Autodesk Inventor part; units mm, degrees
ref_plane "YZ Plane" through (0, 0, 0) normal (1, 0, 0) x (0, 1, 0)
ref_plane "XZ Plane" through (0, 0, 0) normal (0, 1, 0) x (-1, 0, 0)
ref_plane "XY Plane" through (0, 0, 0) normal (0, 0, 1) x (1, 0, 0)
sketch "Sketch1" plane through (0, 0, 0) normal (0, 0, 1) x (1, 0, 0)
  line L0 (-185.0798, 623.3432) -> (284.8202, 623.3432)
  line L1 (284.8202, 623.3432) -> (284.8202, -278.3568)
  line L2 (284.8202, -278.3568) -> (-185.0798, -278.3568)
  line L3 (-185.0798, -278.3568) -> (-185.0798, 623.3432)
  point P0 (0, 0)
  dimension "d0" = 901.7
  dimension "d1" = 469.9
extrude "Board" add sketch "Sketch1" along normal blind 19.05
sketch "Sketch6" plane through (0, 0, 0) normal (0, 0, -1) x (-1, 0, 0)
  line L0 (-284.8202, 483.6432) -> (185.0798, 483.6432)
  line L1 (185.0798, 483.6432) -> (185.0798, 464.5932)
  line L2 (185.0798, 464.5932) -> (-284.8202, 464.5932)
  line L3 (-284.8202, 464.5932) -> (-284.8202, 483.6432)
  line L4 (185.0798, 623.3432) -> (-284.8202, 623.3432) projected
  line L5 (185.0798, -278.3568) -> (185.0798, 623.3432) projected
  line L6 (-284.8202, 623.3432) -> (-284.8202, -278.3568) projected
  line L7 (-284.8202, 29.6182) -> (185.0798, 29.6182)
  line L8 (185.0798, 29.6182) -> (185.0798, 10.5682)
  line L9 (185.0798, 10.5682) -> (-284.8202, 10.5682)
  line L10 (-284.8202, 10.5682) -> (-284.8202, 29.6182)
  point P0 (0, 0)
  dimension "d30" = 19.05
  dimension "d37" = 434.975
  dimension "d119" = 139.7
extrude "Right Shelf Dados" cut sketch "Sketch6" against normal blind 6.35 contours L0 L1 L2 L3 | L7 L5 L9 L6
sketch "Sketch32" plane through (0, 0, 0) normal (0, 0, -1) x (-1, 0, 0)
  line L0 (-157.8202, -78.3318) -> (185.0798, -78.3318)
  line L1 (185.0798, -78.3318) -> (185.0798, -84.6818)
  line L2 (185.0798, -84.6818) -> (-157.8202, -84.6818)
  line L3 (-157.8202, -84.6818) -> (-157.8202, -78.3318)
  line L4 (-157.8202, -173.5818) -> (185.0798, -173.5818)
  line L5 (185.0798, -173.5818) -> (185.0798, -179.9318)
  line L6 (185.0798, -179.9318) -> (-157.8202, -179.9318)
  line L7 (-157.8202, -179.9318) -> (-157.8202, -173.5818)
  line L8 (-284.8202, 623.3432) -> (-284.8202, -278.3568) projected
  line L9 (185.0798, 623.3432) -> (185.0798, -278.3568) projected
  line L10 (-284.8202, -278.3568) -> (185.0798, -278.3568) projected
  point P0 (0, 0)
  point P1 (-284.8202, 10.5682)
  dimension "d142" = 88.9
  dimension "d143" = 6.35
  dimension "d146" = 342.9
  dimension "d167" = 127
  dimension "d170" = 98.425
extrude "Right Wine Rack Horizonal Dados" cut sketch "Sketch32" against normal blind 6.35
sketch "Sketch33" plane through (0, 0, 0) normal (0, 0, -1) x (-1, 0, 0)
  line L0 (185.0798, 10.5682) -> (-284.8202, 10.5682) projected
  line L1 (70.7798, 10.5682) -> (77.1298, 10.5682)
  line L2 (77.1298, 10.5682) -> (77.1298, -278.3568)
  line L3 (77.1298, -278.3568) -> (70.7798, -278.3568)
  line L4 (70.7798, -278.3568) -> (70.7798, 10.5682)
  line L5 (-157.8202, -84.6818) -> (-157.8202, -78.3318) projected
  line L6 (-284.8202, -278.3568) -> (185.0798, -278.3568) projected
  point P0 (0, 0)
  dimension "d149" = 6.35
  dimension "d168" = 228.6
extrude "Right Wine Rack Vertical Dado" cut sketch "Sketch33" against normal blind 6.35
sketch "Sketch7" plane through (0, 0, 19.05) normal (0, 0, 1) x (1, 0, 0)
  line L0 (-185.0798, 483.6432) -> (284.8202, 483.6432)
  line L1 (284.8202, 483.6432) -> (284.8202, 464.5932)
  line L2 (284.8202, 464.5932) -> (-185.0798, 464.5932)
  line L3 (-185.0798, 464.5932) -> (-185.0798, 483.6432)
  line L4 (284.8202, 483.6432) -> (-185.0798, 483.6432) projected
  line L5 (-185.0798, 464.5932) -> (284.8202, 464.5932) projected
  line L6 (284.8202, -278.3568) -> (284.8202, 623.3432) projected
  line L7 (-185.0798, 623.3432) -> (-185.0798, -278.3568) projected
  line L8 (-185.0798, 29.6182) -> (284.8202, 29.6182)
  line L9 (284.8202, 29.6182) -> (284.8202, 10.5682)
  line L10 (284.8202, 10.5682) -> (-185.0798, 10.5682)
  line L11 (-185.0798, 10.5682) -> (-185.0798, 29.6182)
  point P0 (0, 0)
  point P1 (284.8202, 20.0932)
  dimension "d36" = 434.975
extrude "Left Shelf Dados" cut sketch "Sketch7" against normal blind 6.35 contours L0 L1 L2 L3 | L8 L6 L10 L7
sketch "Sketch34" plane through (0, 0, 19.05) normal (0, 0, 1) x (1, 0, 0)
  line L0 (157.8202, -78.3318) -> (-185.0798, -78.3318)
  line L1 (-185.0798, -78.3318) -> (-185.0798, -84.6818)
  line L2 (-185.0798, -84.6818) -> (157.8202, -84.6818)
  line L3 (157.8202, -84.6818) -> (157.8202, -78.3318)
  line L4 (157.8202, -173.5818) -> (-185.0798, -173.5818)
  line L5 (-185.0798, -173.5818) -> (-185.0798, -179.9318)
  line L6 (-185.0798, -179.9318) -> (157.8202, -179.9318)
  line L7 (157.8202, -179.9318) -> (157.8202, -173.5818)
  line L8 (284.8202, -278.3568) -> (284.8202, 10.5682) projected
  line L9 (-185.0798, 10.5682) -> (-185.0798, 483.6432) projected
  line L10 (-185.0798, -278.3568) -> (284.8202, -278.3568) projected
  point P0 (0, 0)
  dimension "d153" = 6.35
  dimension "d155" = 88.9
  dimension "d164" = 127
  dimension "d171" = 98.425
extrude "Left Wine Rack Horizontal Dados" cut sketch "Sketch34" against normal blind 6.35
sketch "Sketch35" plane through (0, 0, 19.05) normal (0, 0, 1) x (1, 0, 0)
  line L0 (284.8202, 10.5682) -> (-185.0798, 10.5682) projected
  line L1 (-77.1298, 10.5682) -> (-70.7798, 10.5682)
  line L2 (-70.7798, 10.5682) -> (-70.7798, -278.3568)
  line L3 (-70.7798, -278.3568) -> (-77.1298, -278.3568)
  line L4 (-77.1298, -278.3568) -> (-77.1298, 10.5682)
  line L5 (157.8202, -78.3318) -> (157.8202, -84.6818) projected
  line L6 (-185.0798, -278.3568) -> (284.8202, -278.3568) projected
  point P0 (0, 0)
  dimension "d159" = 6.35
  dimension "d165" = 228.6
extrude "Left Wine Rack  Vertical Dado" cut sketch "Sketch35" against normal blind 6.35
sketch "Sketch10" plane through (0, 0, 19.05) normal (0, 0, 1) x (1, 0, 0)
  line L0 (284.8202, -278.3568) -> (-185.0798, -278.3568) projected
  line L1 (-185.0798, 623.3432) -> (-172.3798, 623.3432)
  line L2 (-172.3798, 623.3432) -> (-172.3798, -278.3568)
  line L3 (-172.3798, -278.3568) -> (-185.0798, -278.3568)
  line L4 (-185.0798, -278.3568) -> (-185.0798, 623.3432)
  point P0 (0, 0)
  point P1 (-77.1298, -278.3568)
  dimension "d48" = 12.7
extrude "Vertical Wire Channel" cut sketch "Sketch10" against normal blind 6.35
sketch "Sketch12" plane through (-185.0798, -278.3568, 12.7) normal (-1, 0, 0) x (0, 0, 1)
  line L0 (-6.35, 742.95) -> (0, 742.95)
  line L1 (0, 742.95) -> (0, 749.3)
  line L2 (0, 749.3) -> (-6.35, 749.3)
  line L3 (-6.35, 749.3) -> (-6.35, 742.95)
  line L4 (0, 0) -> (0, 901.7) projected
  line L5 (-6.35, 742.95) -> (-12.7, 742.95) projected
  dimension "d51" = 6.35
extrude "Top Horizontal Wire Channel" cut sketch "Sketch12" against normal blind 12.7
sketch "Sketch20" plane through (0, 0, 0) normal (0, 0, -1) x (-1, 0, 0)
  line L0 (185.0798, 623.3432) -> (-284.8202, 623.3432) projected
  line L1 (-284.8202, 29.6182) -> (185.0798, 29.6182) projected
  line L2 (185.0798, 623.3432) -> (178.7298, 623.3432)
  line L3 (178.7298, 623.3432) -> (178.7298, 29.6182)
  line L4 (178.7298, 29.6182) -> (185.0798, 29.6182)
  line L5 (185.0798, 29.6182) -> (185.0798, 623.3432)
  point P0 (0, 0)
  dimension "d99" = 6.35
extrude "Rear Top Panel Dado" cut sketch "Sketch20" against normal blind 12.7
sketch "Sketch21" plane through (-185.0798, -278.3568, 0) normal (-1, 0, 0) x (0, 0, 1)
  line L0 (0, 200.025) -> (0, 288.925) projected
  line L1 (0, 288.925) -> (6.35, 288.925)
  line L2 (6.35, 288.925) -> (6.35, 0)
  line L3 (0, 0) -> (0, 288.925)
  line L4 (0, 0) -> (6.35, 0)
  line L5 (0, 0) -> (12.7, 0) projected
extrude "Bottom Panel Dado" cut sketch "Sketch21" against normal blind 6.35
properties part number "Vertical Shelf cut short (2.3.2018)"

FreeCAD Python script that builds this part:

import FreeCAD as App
import Part
import Sketcher
from FreeCAD import Vector
Q = App.Units.Quantity

doc = App.newDocument("Part")
body = doc.addObject("PartDesign::Body", "Body")

# Sketch on XY plane
sketch1 = body.newObject("Sketcher::SketchObject", "Sketch")
sketch1.AttachmentSupport = (doc.getObject("XY_Plane"), [""])
sketch1.MapMode = "FlatFace"
sketch1.addGeometry([
    Part.LineSegment(Vector(285, 623, 0), Vector(-185, 623, 0)),
    Part.LineSegment(Vector(-185, 623, 0), Vector(-185, -278, 0)),
    Part.LineSegment(Vector(-185, -278, 0), Vector(285, -278, 0)),
    Part.LineSegment(Vector(285, -278, 0), Vector(285, 623, 0)),
], False)
sketch1.addConstraint([
    Sketcher.Constraint("Coincident", 0, 2, 1, 1),
    Sketcher.Constraint("Coincident", 1, 2, 2, 1),
    Sketcher.Constraint("Coincident", 2, 2, 3, 1),
    Sketcher.Constraint("Coincident", 3, 2, 0, 1),
    Sketcher.Constraint("Horizontal", 0),
    Sketcher.Constraint("Vertical", 1),
    Sketcher.Constraint("Horizontal", 2),
    Sketcher.Constraint("Vertical", 3),
    Sketcher.Constraint("DistanceX", 0, 2, 0, 1, Q("18.5 in")),
    Sketcher.Constraint("DistanceY", 1, 2, 1, 1, Q("35.5 in")),
    Sketcher.Constraint("DistanceX", 0, 2, -1, 1, Q("7.2866 in")),
    Sketcher.Constraint("DistanceY", -1, 1, 0, 2, Q("623.3432 mm")),
])
pad1 = body.newObject("PartDesign::Pad", "Pad")
pad1.Profile = sketch1
pad1.Length = Q("0.75 in")

# Sketch on XY plane
sketch2 = body.newObject("Sketcher::SketchObject", "Sketch001")
sketch2.AttachmentSupport = (doc.getObject("XY_Plane"), [""])
sketch2.MapMode = "FlatFace"
sketch2.addGeometry([
    Part.LineSegment(Vector(-185, 484, 0), Vector(285, 484, 0)),  # 0
    Part.LineSegment(Vector(285, 484, 0), Vector(285, 465, 0)),  # 1
    Part.LineSegment(Vector(285, 465, 0), Vector(-185, 465, 0)),  # 2
    Part.LineSegment(Vector(-185, 465, 0), Vector(-185, 484, 0)),  # 3
    Part.LineSegment(Vector(-185, 30, 0), Vector(285, 30, 0)),  # 4
    Part.LineSegment(Vector(285, 30, 0), Vector(285, 11, 0)),  # 5
    Part.LineSegment(Vector(285, 11, 0), Vector(-185, 11, 0)),  # 6
    Part.LineSegment(Vector(-185, 11, 0), Vector(-185, 30, 0)),  # 7
], False)
sketch2.addConstraint([
    Sketcher.Constraint("Coincident", 0, 2, 1, 1),
    Sketcher.Constraint("Coincident", 1, 2, 2, 1),
    Sketcher.Constraint("Coincident", 2, 2, 3, 1),
    Sketcher.Constraint("Coincident", 3, 2, 0, 1),
    Sketcher.Constraint("Coincident", 4, 2, 5, 1),
    Sketcher.Constraint("Coincident", 5, 2, 6, 1),
    Sketcher.Constraint("Coincident", 6, 2, 7, 1),
    Sketcher.Constraint("Coincident", 7, 2, 4, 1),
    Sketcher.Constraint("Horizontal", 0),
    Sketcher.Constraint("Vertical", 1),
    Sketcher.Constraint("Horizontal", 2),
    Sketcher.Constraint("Vertical", 3),
    Sketcher.Constraint("Horizontal", 4),
    Sketcher.Constraint("Vertical", 5),
    Sketcher.Constraint("Horizontal", 6),
    Sketcher.Constraint("Vertical", 7),
    Sketcher.Constraint("Vertical", 1, 2, 4, 2),
    Sketcher.Constraint("Vertical", 3, 2, 6, 2),
    Sketcher.Constraint("Equal", 3, 5),
    Sketcher.Constraint("DistanceY", 1, 2, 1, 1, Q("0.75 in")),
    Sketcher.Constraint("DistanceX", 0, 1, 0, 2, Q("18.5 in")),
    Sketcher.Constraint("DistanceY", 4, 2, 1, 2, Q("17.125 in")),
    Sketcher.Constraint("DistanceX", -1, 1, 0, 2, Q("11.2134 in")),
    Sketcher.Constraint("DistanceY", -1, 1, 0, 2, Q("483.6432 mm")),
])
pocket1 = body.newObject("PartDesign::Pocket", "Pocket")
pocket1.Profile = sketch2
pocket1.Length = Q("0.25 in")
pocket1.Reversed = True

# Sketch on XY plane
sketch3 = body.newObject("Sketcher::SketchObject", "Sketch002")
sketch3.AttachmentSupport = (doc.getObject("XY_Plane"), [""])
sketch3.MapMode = "FlatFace"
sketch3.addGeometry([
    Part.LineSegment(Vector(-185, -180, 0), Vector(-185, -174, 0)),  # 0
    Part.LineSegment(Vector(-185, -174, 0), Vector(158, -174, 0)),  # 1
    Part.LineSegment(Vector(158, -174, 0), Vector(158, -180, 0)),  # 2
    Part.LineSegment(Vector(158, -180, 0), Vector(-185, -180, 0)),  # 3
    Part.LineSegment(Vector(-185, -78, 0), Vector(158, -78, 0)),  # 4
    Part.LineSegment(Vector(158, -78, 0), Vector(158, -85, 0)),  # 5
    Part.LineSegment(Vector(158, -85, 0), Vector(-185, -85, 0)),  # 6
    Part.LineSegment(Vector(-185, -85, 0), Vector(-185, -78, 0)),  # 7
], False)
sketch3.addConstraint([
    Sketcher.Constraint("Coincident", 0, 2, 1, 1),
    Sketcher.Constraint("Coincident", 1, 2, 2, 1),
    Sketcher.Constraint("Coincident", 2, 2, 3, 1),
    Sketcher.Constraint("Coincident", 3, 2, 0, 1),
    Sketcher.Constraint("Coincident", 4, 2, 5, 1),
    Sketcher.Constraint("Coincident", 5, 2, 6, 1),
    Sketcher.Constraint("Coincident", 6, 2, 7, 1),
    Sketcher.Constraint("Coincident", 7, 2, 4, 1),
    Sketcher.Constraint("Vertical", 0),
    Sketcher.Constraint("Horizontal", 1),
    Sketcher.Constraint("Vertical", 2),
    Sketcher.Constraint("Horizontal", 3),
    Sketcher.Constraint("Horizontal", 4),
    Sketcher.Constraint("Vertical", 5),
    Sketcher.Constraint("Horizontal", 6),
    Sketcher.Constraint("Vertical", 7),
    Sketcher.Constraint("Vertical", 2, 2, 4, 2),
    Sketcher.Constraint("Vertical", 3, 2, 6, 2),
    Sketcher.Constraint("Equal", 2, 5),
    Sketcher.Constraint("DistanceX", 1, 1, 1, 2, Q("13.5 in")),
    Sketcher.Constraint("DistanceY", 0, 1, 0, 2, Q("0.25 in")),
    Sketcher.Constraint("DistanceY", 1, 2, 5, 2, Q("3.5 in")),
    Sketcher.Constraint("DistanceX", 0, 2, -1, 1, Q("7.2866 in")),
    Sketcher.Constraint("DistanceY", 0, 2, -1, 1, Q("173.5818 mm")),
])
pocket2 = body.newObject("PartDesign::Pocket", "Pocket001")
pocket2.Profile = sketch3
pocket2.Length = Q("0.25 in")
pocket2.Reversed = True

# Sketch on XY plane
sketch4 = body.newObject("Sketcher::SketchObject", "Sketch003")
sketch4.AttachmentSupport = (doc.getObject("XY_Plane"), [""])
sketch4.MapMode = "FlatFace"
sketch4.addGeometry([
    Part.LineSegment(Vector(-77, -278, 0), Vector(-77, 11, 0)),
    Part.LineSegment(Vector(-77, 11, 0), Vector(-71, 11, 0)),
    Part.LineSegment(Vector(-71, 11, 0), Vector(-71, -278, 0)),
    Part.LineSegment(Vector(-71, -278, 0), Vector(-77, -278, 0)),
], False)
sketch4.addConstraint([
    Sketcher.Constraint("Coincident", 0, 2, 1, 1),
    Sketcher.Constraint("Coincident", 1, 2, 2, 1),
    Sketcher.Constraint("Coincident", 2, 2, 3, 1),
    Sketcher.Constraint("Coincident", 3, 2, 0, 1),
    Sketcher.Constraint("Vertical", 0),
    Sketcher.Constraint("Horizontal", 1),
    Sketcher.Constraint("Vertical", 2),
    Sketcher.Constraint("Horizontal", 3),
    Sketcher.Constraint("DistanceX", 1, 1, 1, 2, Q("0.25 in")),
    Sketcher.Constraint("DistanceY", 0, 1, 0, 2, Q("11.375 in")),
    Sketcher.Constraint("DistanceX", 0, 2, -1, 1, Q("3.0366 in")),
    Sketcher.Constraint("DistanceY", -1, 1, 0, 2, Q("10.5682 mm")),
])
pocket3 = body.newObject("PartDesign::Pocket", "Pocket002")
pocket3.Profile = sketch4
pocket3.Length = Q("0.25 in")
pocket3.Reversed = True

# Sketch on XY plane
sketch5 = body.newObject("Sketcher::SketchObject", "Sketch004")
sketch5.AttachmentSupport = (doc.getObject("XY_Plane"), [""])
sketch5.MapMode = "FlatFace"
sketch5.AttachmentOffset = App.Placement(Vector(0, 0, 0.75 * 25.4), App.Rotation())
sketch5.addGeometry([
    Part.LineSegment(Vector(285, 484, 0), Vector(-185, 484, 0)),  # 0
    Part.LineSegment(Vector(-185, 484, 0), Vector(-185, 465, 0)),  # 1
    Part.LineSegment(Vector(-185, 465, 0), Vector(285, 465, 0)),  # 2
    Part.LineSegment(Vector(285, 465, 0), Vector(285, 484, 0)),  # 3
    Part.LineSegment(Vector(285, 30, 0), Vector(-185, 30, 0)),  # 4
    Part.LineSegment(Vector(-185, 30, 0), Vector(-185, 11, 0)),  # 5
    Part.LineSegment(Vector(-185, 11, 0), Vector(285, 11, 0)),  # 6
    Part.LineSegment(Vector(285, 11, 0), Vector(285, 30, 0)),  # 7
], False)
sketch5.addConstraint([
    Sketcher.Constraint("Coincident", 0, 2, 1, 1),
    Sketcher.Constraint("Coincident", 1, 2, 2, 1),
    Sketcher.Constraint("Coincident", 2, 2, 3, 1),
    Sketcher.Constraint("Coincident", 3, 2, 0, 1),
    Sketcher.Constraint("Coincident", 4, 2, 5, 1),
    Sketcher.Constraint("Coincident", 5, 2, 6, 1),
    Sketcher.Constraint("Coincident", 6, 2, 7, 1),
    Sketcher.Constraint("Coincident", 7, 2, 4, 1),
    Sketcher.Constraint("Horizontal", 0),
    Sketcher.Constraint("Vertical", 1),
    Sketcher.Constraint("Horizontal", 2),
    Sketcher.Constraint("Vertical", 3),
    Sketcher.Constraint("Horizontal", 4),
    Sketcher.Constraint("Vertical", 5),
    Sketcher.Constraint("Horizontal", 6),
    Sketcher.Constraint("Vertical", 7),
    Sketcher.Constraint("Vertical", 1, 2, 4, 2),
    Sketcher.Constraint("Vertical", 3, 2, 6, 2),
    Sketcher.Constraint("Equal", 3, 5),
    Sketcher.Constraint("DistanceX", 0, 2, 0, 1, Q("18.5 in")),
    Sketcher.Constraint("DistanceY", 4, 2, 1, 2, Q("17.125 in")),
    Sketcher.Constraint("DistanceY", 1, 2, 1, 1, Q("0.75 in")),
    Sketcher.Constraint("DistanceX", 0, 2, -1, 1, Q("7.2866 in")),
    Sketcher.Constraint("DistanceY", -1, 1, 0, 2, Q("483.6432 mm")),
])
pocket4 = body.newObject("PartDesign::Pocket", "Pocket003")
pocket4.Profile = sketch5
pocket4.Length = Q("0.25 in")

# Sketch on XY plane
sketch6 = body.newObject("Sketcher::SketchObject", "Sketch005")
sketch6.AttachmentSupport = (doc.getObject("XY_Plane"), [""])
sketch6.MapMode = "FlatFace"
sketch6.AttachmentOffset = App.Placement(Vector(0, 0, 0.75 * 25.4), App.Rotation())
sketch6.addGeometry([
    Part.LineSegment(Vector(158, -85, 0), Vector(158, -78, 0)),  # 0
    Part.LineSegment(Vector(158, -78, 0), Vector(-185, -78, 0)),  # 1
    Part.LineSegment(Vector(-185, -78, 0), Vector(-185, -85, 0)),  # 2
    Part.LineSegment(Vector(-185, -85, 0), Vector(158, -85, 0)),  # 3
    Part.LineSegment(Vector(158, -180, 0), Vector(158, -174, 0)),  # 4
    Part.LineSegment(Vector(158, -174, 0), Vector(-185, -174, 0)),  # 5
    Part.LineSegment(Vector(-185, -174, 0), Vector(-185, -180, 0)),  # 6
    Part.LineSegment(Vector(-185, -180, 0), Vector(158, -180, 0)),  # 7
], False)
sketch6.addConstraint([
    Sketcher.Constraint("Coincident", 0, 2, 1, 1),
    Sketcher.Constraint("Coincident", 1, 2, 2, 1),
    Sketcher.Constraint("Coincident", 2, 2, 3, 1),
    Sketcher.Constraint("Coincident", 3, 2, 0, 1),
    Sketcher.Constraint("Coincident", 4, 2, 5, 1),
    Sketcher.Constraint("Coincident", 5, 2, 6, 1),
    Sketcher.Constraint("Coincident", 6, 2, 7, 1),
    Sketcher.Constraint("Coincident", 7, 2, 4, 1),
    Sketcher.Constraint("Vertical", 0),
    Sketcher.Constraint("Horizontal", 1),
    Sketcher.Constraint("Vertical", 2),
    Sketcher.Constraint("Horizontal", 3),
    Sketcher.Constraint("Vertical", 4),
    Sketcher.Constraint("Horizontal", 5),
    Sketcher.Constraint("Vertical", 6),
    Sketcher.Constraint("Horizontal", 7),
    Sketcher.Constraint("Vertical", 3, 2, 4, 2),
    Sketcher.Constraint("Vertical", 2, 2, 5, 2),
    Sketcher.Constraint("Equal", 2, 4),
    Sketcher.Constraint("DistanceY", 0, 1, 0, 2, Q("0.25 in")),
    Sketcher.Constraint("DistanceY", 4, 2, 3, 2, Q("3.5 in")),
    Sketcher.Constraint("DistanceX", 1, 2, 1, 1, Q("13.5 in")),
    Sketcher.Constraint("DistanceX", -1, 1, 0, 2, Q("6.2134 in")),
    Sketcher.Constraint("DistanceY", 0, 2, -1, 1, Q("78.3318 mm")),
])
pocket5 = body.newObject("PartDesign::Pocket", "Pocket004")
pocket5.Profile = sketch6
pocket5.Length = Q("0.25 in")

# Sketch on XY plane
sketch7 = body.newObject("Sketcher::SketchObject", "Sketch006")
sketch7.AttachmentSupport = (doc.getObject("XY_Plane"), [""])
sketch7.MapMode = "FlatFace"
sketch7.AttachmentOffset = App.Placement(Vector(0, 0, 0.75 * 25.4), App.Rotation())
sketch7.addGeometry([
    Part.LineSegment(Vector(-71, -278, 0), Vector(-71, 11, 0)),
    Part.LineSegment(Vector(-71, 11, 0), Vector(-77, 11, 0)),
    Part.LineSegment(Vector(-77, 11, 0), Vector(-77, -278, 0)),
    Part.LineSegment(Vector(-77, -278, 0), Vector(-71, -278, 0)),
], False)
sketch7.addConstraint([
    Sketcher.Constraint("Coincident", 0, 2, 1, 1),
    Sketcher.Constraint("Coincident", 1, 2, 2, 1),
    Sketcher.Constraint("Coincident", 2, 2, 3, 1),
    Sketcher.Constraint("Coincident", 3, 2, 0, 1),
    Sketcher.Constraint("Vertical", 0),
    Sketcher.Constraint("Horizontal", 1),
    Sketcher.Constraint("Vertical", 2),
    Sketcher.Constraint("Horizontal", 3),
    Sketcher.Constraint("DistanceX", 1, 2, 1, 1, Q("0.25 in")),
    Sketcher.Constraint("DistanceY", 0, 1, 0, 2, Q("11.375 in")),
    Sketcher.Constraint("DistanceX", 0, 2, -1, 1, Q("2.7866 in")),
    Sketcher.Constraint("DistanceY", -1, 1, 0, 2, Q("10.5682 mm")),
])
pocket6 = body.newObject("PartDesign::Pocket", "Pocket005")
pocket6.Profile = sketch7
pocket6.Length = Q("0.25 in")

# Sketch on XY plane
sketch8 = body.newObject("Sketcher::SketchObject", "Sketch007")
sketch8.AttachmentSupport = (doc.getObject("XY_Plane"), [""])
sketch8.MapMode = "FlatFace"
sketch8.AttachmentOffset = App.Placement(Vector(0, 0, 0.75 * 25.4), App.Rotation())
sketch8.addGeometry([
    Part.LineSegment(Vector(-185, -278, 0), Vector(-172, -278, 0)),
    Part.LineSegment(Vector(-172, -278, 0), Vector(-172, 623, 0)),
    Part.LineSegment(Vector(-172, 623, 0), Vector(-185, 623, 0)),
    Part.LineSegment(Vector(-185, 623, 0), Vector(-185, -278, 0)),
], False)
sketch8.addConstraint([
    Sketcher.Constraint("Coincident", 0, 2, 1, 1),
    Sketcher.Constraint("Coincident", 1, 2, 2, 1),
    Sketcher.Constraint("Coincident", 2, 2, 3, 1),
    Sketcher.Constraint("Coincident", 3, 2, 0, 1),
    Sketcher.Constraint("Horizontal", 0),
    Sketcher.Constraint("Vertical", 1),
    Sketcher.Constraint("Horizontal", 2),
    Sketcher.Constraint("Vertical", 3),
    Sketcher.Constraint("DistanceX", 0, 1, 0, 2, Q("0.5 in")),
    Sketcher.Constraint("DistanceY", 1, 1, 1, 2, Q("35.5 in")),
    Sketcher.Constraint("DistanceX", 0, 2, -1, 1, Q("6.7866 in")),
    Sketcher.Constraint("DistanceY", 0, 2, -1, 1, Q("278.3568 mm")),
])
pocket7 = body.newObject("PartDesign::Pocket", "Pocket006")
pocket7.Profile = sketch8
pocket7.Length = Q("0.25 in")

# Sketch on YZ plane
sketch9 = body.newObject("Sketcher::SketchObject", "Sketch008")
sketch9.AttachmentSupport = (doc.getObject("YZ_Plane"), [""])
sketch9.MapMode = "FlatFace"
sketch9.AttachmentOffset = App.Placement(Vector(0, 0, -7.2866063 * 25.4), App.Rotation())
sketch9.addGeometry([
    Part.LineSegment(Vector(471, 6, 0), Vector(465, 6, 0)),
    Part.LineSegment(Vector(465, 6, 0), Vector(465, 13, 0)),
    Part.LineSegment(Vector(465, 13, 0), Vector(471, 13, 0)),
    Part.LineSegment(Vector(471, 13, 0), Vector(471, 6, 0)),
], False)
sketch9.addConstraint([
    Sketcher.Constraint("Coincident", 0, 2, 1, 1),
    Sketcher.Constraint("Coincident", 1, 2, 2, 1),
    Sketcher.Constraint("Coincident", 2, 2, 3, 1),
    Sketcher.Constraint("Coincident", 3, 2, 0, 1),
    Sketcher.Constraint("Horizontal", 0),
    Sketcher.Constraint("Vertical", 1),
    Sketcher.Constraint("Horizontal", 2),
    Sketcher.Constraint("Vertical", 3),
    Sketcher.Constraint("Equal", 2, 1),
    Sketcher.Constraint("DistanceX", 0, 2, 0, 1, Q("0.25 in")),
    Sketcher.Constraint("DistanceY", -1, 1, 0, 2, Q("0.25 in")),
    Sketcher.Constraint("DistanceX", -1, 1, 0, 2, Q("464.5932 mm")),
])
pocket8 = body.newObject("PartDesign::Pocket", "Pocket007")
pocket8.Profile = sketch9
pocket8.Length = Q("0.5 in")
pocket8.Reversed = True

# Sketch on XY plane
sketch10 = body.newObject("Sketcher::SketchObject", "Sketch009")
sketch10.AttachmentSupport = (doc.getObject("XY_Plane"), [""])
sketch10.MapMode = "FlatFace"
sketch10.addGeometry([
    Part.LineSegment(Vector(-185, 30, 0), Vector(-185, 623, 0)),
    Part.LineSegment(Vector(-185, 623, 0), Vector(-179, 623, 0)),
    Part.LineSegment(Vector(-179, 623, 0), Vector(-179, 30, 0)),
    Part.LineSegment(Vector(-179, 30, 0), Vector(-185, 30, 0)),
], False)
sketch10.addConstraint([
    Sketcher.Constraint("Coincident", 0, 2, 1, 1),
    Sketcher.Constraint("Coincident", 1, 2, 2, 1),
    Sketcher.Constraint("Coincident", 2, 2, 3, 1),
    Sketcher.Constraint("Coincident", 3, 2, 0, 1),
    Sketcher.Constraint("Vertical", 0),
    Sketcher.Constraint("Horizontal", 1),
    Sketcher.Constraint("Vertical", 2),
    Sketcher.Constraint("Horizontal", 3),
    Sketcher.Constraint("DistanceX", 1, 1, 1, 2, Q("0.25 in")),
    Sketcher.Constraint("DistanceY", 0, 1, 0, 2, Q("23.375 in")),
    Sketcher.Constraint("DistanceX", 0, 2, -1, 1, Q("7.2866 in")),
    Sketcher.Constraint("DistanceY", -1, 1, 0, 2, Q("623.3432 mm")),
])
pocket9 = body.newObject("PartDesign::Pocket", "Pocket008")
pocket9.Profile = sketch10
pocket9.Length = Q("0.5 in")
pocket9.Reversed = True

# Sketch on YZ plane
sketch11 = body.newObject("Sketcher::SketchObject", "Sketch010")
sketch11.AttachmentSupport = (doc.getObject("YZ_Plane"), [""])
sketch11.MapMode = "FlatFace"
sketch11.AttachmentOffset = App.Placement(Vector(0, 0, -7.2866063 * 25.4), App.Rotation())
sketch11.addGeometry([
    Part.LineSegment(Vector(11, 0, 0), Vector(-278, 0, 0)),
    Part.LineSegment(Vector(-278, 0, 0), Vector(-278, 6, 0)),
    Part.LineSegment(Vector(-278, 6, 0), Vector(11, 6, 0)),
    Part.LineSegment(Vector(11, 6, 0), Vector(11, 0, 0)),
], False)
sketch11.addConstraint([
    Sketcher.Constraint("Coincident", 0, 2, 1, 1),
    Sketcher.Constraint("Coincident", 1, 2, 2, 1),
    Sketcher.Constraint("Coincident", 2, 2, 3, 1),
    Sketcher.Constraint("Coincident", 3, 2, 0, 1),
    Sketcher.Constraint("Horizontal", 0),
    Sketcher.Constraint("Vertical", 1),
    Sketcher.Constraint("Horizontal", 2),
    Sketcher.Constraint("Vertical", 3),
    Sketcher.Constraint("PointOnObject", 0, 2, -1),
    Sketcher.Constraint("DistanceY", 1, 1, 1, 2, Q("0.25 in")),
    Sketcher.Constraint("DistanceX", 0, 2, 0, 1, Q("11.375 in")),
    Sketcher.Constraint("DistanceX", 0, 2, -1, 1, Q("278.3568 mm")),
])
pocket10 = body.newObject("PartDesign::Pocket", "Pocket009")
pocket10.Profile = sketch11
pocket10.Length = Q("0.25 in")
pocket10.Reversed = True

doc.recompute()
